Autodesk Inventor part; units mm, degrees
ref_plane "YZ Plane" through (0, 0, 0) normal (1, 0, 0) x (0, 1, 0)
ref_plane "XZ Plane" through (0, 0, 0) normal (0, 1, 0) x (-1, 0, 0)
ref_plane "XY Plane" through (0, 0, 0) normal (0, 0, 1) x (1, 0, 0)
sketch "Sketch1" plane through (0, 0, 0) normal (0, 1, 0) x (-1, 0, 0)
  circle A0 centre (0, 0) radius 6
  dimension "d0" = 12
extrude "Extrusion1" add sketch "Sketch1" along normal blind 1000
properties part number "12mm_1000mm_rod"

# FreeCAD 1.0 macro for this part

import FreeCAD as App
import Part
import Sketcher
from FreeCAD import Vector
Q = App.Units.Quantity

doc = App.newDocument("Part")
body = doc.addObject("PartDesign::Body", "Body")

# Sketch on XZ plane
sketch1 = body.newObject("Sketcher::SketchObject", "Sketch")
sketch1.AttachmentSupport = (doc.getObject("XZ_Plane"), [""])
sketch1.MapMode = "FlatFace"
sketch1.addGeometry(Part.Circle(Vector(0, 0, 0), Vector(0, 0, 1), 6), False)
sketch1.addConstraint([
    Sketcher.Constraint("Coincident", 0, 3, -1, 1),
    Sketcher.Constraint("Diameter", 0, Q("12 mm")),
])
pad1 = body.newObject("PartDesign::Pad", "Pad")
pad1.Profile = sketch1
pad1.Length = 1000
pad1.Reversed = True

doc.recompute()
